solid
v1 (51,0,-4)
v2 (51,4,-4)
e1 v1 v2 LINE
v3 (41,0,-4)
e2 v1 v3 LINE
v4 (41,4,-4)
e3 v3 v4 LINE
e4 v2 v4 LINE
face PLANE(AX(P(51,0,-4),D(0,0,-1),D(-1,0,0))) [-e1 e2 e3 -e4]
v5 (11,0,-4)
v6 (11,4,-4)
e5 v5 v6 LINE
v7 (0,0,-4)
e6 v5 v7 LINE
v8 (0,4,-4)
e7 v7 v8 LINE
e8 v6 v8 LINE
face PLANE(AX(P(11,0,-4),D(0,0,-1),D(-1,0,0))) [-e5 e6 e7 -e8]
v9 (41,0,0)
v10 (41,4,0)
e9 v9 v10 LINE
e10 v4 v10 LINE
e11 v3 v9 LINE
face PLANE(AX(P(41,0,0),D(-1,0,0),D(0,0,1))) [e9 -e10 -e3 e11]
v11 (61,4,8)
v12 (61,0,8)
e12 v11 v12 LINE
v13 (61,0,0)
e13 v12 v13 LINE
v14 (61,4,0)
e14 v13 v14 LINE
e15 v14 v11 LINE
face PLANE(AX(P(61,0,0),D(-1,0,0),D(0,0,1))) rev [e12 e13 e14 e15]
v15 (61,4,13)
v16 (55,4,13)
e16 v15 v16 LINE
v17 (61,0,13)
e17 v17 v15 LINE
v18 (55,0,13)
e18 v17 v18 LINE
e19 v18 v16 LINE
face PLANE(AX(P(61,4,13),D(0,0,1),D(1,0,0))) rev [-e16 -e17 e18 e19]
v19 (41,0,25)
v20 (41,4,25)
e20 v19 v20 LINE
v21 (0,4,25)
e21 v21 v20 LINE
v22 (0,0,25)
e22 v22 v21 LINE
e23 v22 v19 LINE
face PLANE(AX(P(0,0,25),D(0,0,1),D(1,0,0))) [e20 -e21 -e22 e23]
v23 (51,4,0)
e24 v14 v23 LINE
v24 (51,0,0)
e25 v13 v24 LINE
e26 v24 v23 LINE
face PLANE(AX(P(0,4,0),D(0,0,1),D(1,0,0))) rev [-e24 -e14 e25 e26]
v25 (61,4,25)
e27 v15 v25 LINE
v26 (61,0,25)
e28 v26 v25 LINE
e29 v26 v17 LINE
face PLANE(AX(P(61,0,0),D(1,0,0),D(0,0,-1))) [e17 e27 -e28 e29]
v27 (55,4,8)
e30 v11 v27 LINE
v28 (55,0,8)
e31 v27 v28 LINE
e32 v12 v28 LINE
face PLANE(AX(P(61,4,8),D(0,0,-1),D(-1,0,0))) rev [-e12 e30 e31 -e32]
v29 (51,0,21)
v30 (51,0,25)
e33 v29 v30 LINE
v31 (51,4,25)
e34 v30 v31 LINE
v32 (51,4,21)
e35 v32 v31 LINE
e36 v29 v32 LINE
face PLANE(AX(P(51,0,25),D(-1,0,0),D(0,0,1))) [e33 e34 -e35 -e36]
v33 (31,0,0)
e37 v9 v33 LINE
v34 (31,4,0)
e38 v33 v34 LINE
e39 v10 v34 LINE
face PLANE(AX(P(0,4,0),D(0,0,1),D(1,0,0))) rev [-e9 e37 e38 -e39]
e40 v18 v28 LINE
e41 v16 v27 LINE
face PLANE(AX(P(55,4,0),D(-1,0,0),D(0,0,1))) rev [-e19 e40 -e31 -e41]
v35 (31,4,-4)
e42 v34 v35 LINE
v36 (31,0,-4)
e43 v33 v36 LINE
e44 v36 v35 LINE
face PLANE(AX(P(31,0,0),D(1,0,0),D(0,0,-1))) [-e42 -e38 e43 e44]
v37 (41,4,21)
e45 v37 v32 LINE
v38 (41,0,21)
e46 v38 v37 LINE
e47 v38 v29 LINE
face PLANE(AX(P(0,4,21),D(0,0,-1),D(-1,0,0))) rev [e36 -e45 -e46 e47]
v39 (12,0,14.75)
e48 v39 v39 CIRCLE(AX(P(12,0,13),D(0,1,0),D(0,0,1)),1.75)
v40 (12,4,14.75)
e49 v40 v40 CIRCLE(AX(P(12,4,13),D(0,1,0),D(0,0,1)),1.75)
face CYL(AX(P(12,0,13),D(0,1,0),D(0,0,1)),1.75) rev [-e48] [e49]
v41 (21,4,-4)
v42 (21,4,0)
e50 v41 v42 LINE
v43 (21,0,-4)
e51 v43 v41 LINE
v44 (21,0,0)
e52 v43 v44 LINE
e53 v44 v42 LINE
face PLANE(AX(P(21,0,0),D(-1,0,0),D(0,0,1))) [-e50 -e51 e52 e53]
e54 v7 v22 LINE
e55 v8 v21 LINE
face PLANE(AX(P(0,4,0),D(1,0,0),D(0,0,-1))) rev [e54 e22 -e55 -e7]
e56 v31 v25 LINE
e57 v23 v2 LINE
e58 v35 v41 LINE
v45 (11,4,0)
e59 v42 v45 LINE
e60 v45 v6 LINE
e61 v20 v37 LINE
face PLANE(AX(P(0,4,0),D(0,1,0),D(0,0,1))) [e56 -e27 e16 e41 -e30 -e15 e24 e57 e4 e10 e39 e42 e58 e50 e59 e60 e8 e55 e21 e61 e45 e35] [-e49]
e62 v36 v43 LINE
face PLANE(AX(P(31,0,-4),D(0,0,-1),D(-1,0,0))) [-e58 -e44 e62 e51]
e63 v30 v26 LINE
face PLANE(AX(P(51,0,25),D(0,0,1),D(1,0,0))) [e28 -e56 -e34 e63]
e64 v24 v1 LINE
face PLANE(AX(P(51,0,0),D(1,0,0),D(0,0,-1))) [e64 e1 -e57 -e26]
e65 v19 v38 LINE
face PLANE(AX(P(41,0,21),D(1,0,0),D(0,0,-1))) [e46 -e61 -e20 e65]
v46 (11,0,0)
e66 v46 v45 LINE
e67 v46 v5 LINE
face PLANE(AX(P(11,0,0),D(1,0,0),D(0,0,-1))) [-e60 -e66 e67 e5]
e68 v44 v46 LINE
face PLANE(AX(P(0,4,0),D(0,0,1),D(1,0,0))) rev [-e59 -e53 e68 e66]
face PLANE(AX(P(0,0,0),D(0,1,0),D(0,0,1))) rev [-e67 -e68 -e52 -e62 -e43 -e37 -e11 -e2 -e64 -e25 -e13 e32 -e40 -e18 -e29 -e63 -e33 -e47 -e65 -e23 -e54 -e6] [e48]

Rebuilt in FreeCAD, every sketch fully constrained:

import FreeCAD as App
import Part
import Sketcher
from FreeCAD import Vector
Q = App.Units.Quantity


def add_polygon(sketch, points):
    """Adds a closed chain of lines whose ends are joined by coincident constraints."""
    first, n = sketch.GeometryCount, len(points)
    for a, b in zip(points, points[1:] + points[:1]):
        sketch.addGeometry(Part.LineSegment(App.Vector(*a, 0), App.Vector(*b, 0)), False)
    for i in range(n):
        sketch.addConstraint(Sketcher.Constraint("Coincident", first + i, 2, first + (i + 1) % n, 1))

doc = App.newDocument("Part")
body = doc.addObject("PartDesign::Body", "Body")

# Sketch on XZ plane
sketch1 = doc.addObject("Sketcher::SketchObject", "Sketch")
body.addObject(sketch1)
sketch1.AttachmentSupport = (doc.XZ_Plane, [""])
sketch1.MapMode = "FlatFace"
add_polygon(sketch1, [(0, 0), (0, 21), (55, 21), (55, 0)])  # lines 0-3
sketch1.addConstraint([
    Sketcher.Constraint("Vertical", 0),
    Sketcher.Constraint("Horizontal", 1),
    Sketcher.Constraint("Vertical", 2),
    Sketcher.Constraint("Horizontal", 3),
    Sketcher.Constraint("Coincident", 3, 2, -1, 1),
    Sketcher.Constraint("DistanceX", 1, 1, 1, 2, Q("55 mm")),
    Sketcher.Constraint("DistanceY", 0, 1, 0, 2, Q("21 mm")),
])
pad1 = doc.addObject("PartDesign::Pad", "Pad")
body.addObject(pad1)
pad1.Profile = sketch1
pad1.Length = 4
pad1.Reversed = True

# Sketch on YZ plane
sketch2 = doc.addObject("Sketcher::SketchObject", "Sketch001")
body.addObject(sketch2)
sketch2.AttachmentSupport = (doc.YZ_Plane, [""])
sketch2.MapMode = "FlatFace"
sketch2.AttachmentOffset = App.Placement(Vector(0, 0, 55), App.Rotation())
add_polygon(sketch2, [(4, 21), (0, 21), (0, 13), (4, 13)])  # lines 0-3
add_polygon(sketch2, [(4, 8), (0, 8), (0, 0), (4, 0)])  # lines 4-7
sketch2.addConstraint([
    Sketcher.Constraint("Horizontal", 0),
    Sketcher.Constraint("Vertical", 1),
    Sketcher.Constraint("Horizontal", 2),
    Sketcher.Constraint("Vertical", 3),
    Sketcher.Constraint("Horizontal", 4),
    Sketcher.Constraint("Vertical", 5),
    Sketcher.Constraint("Horizontal", 6),
    Sketcher.Constraint("Vertical", 7),
    Sketcher.Constraint("Coincident", 5, 2, -1, 1),
    Sketcher.Constraint("PointOnObject", 0, 2, -2),
    Sketcher.Constraint("Vertical", 3, 2, 6, 2),
    Sketcher.Constraint("Equal", 3, 5),
    Sketcher.Constraint("DistanceX", 0, 2, 0, 1, Q("4 mm")),
    Sketcher.Constraint("DistanceY", 1, 2, 1, 1, Q("8 mm")),
    Sketcher.Constraint("DistanceY", -1, 1, 0, 2, Q("21 mm")),
])
pad2 = doc.addObject("PartDesign::Pad", "Pad001")
body.addObject(pad2)
pad2.Profile = sketch2
pad2.Length = 6

# Sketch on XZ plane
sketch3 = doc.addObject("Sketcher::SketchObject", "Sketch002")
body.addObject(sketch3)
sketch3.AttachmentSupport = (doc.XZ_Plane, [""])
sketch3.MapMode = "FlatFace"
sketch3.AttachmentOffset = App.Placement(Vector(0, 0, -4), App.Rotation())
add_polygon(sketch3, [(41, -4), (41, 0), (51, 0), (51, -4)])  # lines 0-3
sketch3.addConstraint([
    Sketcher.Constraint("Vertical", 0),
    Sketcher.Constraint("Horizontal", 1),
    Sketcher.Constraint("Vertical", 2),
    Sketcher.Constraint("Horizontal", 3),
    Sketcher.Constraint("PointOnObject", 0, 2, -1),
    Sketcher.Constraint("DistanceX", 1, 1, 1, 2, Q("10 mm")),
    Sketcher.Constraint("DistanceY", 0, 1, 0, 2, Q("4 mm")),
    Sketcher.Constraint("DistanceX", -1, 1, 0, 2, Q("41 mm")),
])
pad3 = doc.addObject("PartDesign::Pad", "Pad002")
body.addObject(pad3)
pad3.Profile = sketch3
pad3.Length = 4
doc.recompute()

linearpattern = doc.addObject("PartDesign::LinearPattern", "LinearPattern")
body.addObject(linearpattern)
linearpattern.Originals = [pad3]
linearpattern.Direction = (doc.X_Axis, [""])
linearpattern.Mode = "offset"
linearpattern.Offset = 20
linearpattern.Occurrences = 3
linearpattern.Reversed = True
body.Tip = linearpattern

# Sketch on XZ plane
sketch4 = doc.addObject("Sketcher::SketchObject", "Sketch003")
body.addObject(sketch4)
sketch4.AttachmentSupport = (doc.XZ_Plane, [""])
sketch4.MapMode = "FlatFace"
sketch4.AttachmentOffset = App.Placement(Vector(0, 0, -4), App.Rotation())
add_polygon(sketch4, [(0, -4), (0, 0), (1, 0), (1, -4)])  # lines 0-3
sketch4.addConstraint([
    Sketcher.Constraint("Vertical", 0),
    Sketcher.Constraint("Horizontal", 1),
    Sketcher.Constraint("Vertical", 2),
    Sketcher.Constraint("Horizontal", 3),
    Sketcher.Constraint("Coincident", 0, 2, -1, 1),
    Sketcher.Constraint("DistanceX", 1, 1, 1, 2, Q("1 mm")),
    Sketcher.Constraint("DistanceY", 0, 1, 0, 2, Q("4 mm")),
])
pad4 = doc.addObject("PartDesign::Pad", "Pad003")
body.addObject(pad4)
pad4.Profile = sketch4
pad4.Length = 4

# Sketch on XZ plane
sketch5 = doc.addObject("Sketcher::SketchObject", "Sketch004")
body.addObject(sketch5)
sketch5.AttachmentSupport = (doc.XZ_Plane, [""])
sketch5.MapMode = "FlatFace"
sketch5.AttachmentOffset = App.Placement(Vector(0, 0, -4), App.Rotation())
add_polygon(sketch5, [(0, 21), (0, 25), (41, 25), (41, 21)])  # lines 0-3
add_polygon(sketch5, [(51, 21), (51, 25), (61, 25), (61, 21)])  # lines 4-7
sketch5.addConstraint([
    Sketcher.Constraint("Vertical", 0),
    Sketcher.Constraint("Horizontal", 1),
    Sketcher.Constraint("Vertical", 2),
    Sketcher.Constraint("Horizontal", 3),
    Sketcher.Constraint("Vertical", 4),
    Sketcher.Constraint("Horizontal", 5),
    Sketcher.Constraint("Vertical", 6),
    Sketcher.Constraint("Horizontal", 7),
    Sketcher.Constraint("PointOnObject", 0, 2, -2),
    Sketcher.Constraint("Horizontal", 1, 2, 4, 2),
    Sketcher.Constraint("Horizontal", 3, 2, 6, 2),
    Sketcher.Constraint("DistanceX", 1, 1, 1, 2, Q("41 mm")),
    Sketcher.Constraint("DistanceX", 5, 1, 5, 2, Q("10 mm")),
    Sketcher.Constraint("DistanceY", 0, 1, 0, 2, Q("4 mm")),
    Sketcher.Constraint("DistanceY", -1, 1, 0, 2, Q("25 mm")),
    Sketcher.Constraint("DistanceX", -1, 1, 4, 2, Q("51 mm")),
])
pad5 = doc.addObject("PartDesign::Pad", "Pad004")
body.addObject(pad5)
pad5.Profile = sketch5
pad5.Length = 4

# Sketch on XZ plane
sketch6 = doc.addObject("Sketcher::SketchObject", "Sketch005")
body.addObject(sketch6)
sketch6.AttachmentSupport = (doc.XZ_Plane, [""])
sketch6.MapMode = "FlatFace"
sketch6.AttachmentOffset = App.Placement(Vector(0, 0, -4), App.Rotation())
sketch6.addGeometry(Part.Circle(Vector(12, 13, 0), Vector(0, 0, 1), 1.8), False)
sketch6.addConstraint([
    Sketcher.Constraint("Diameter", 0, Q("3.5 mm")),
    Sketcher.Constraint("DistanceX", -1, 1, 0, 3, Q("12 mm")),
    Sketcher.Constraint("DistanceY", -1, 1, 0, 3, Q("13 mm")),
])
pocket1 = doc.addObject("PartDesign::Pocket", "Pocket")
body.addObject(pocket1)
pocket1.Profile = sketch6
pocket1.Type = "ThroughAll"
pocket1.Reversed = True

doc.recompute()
